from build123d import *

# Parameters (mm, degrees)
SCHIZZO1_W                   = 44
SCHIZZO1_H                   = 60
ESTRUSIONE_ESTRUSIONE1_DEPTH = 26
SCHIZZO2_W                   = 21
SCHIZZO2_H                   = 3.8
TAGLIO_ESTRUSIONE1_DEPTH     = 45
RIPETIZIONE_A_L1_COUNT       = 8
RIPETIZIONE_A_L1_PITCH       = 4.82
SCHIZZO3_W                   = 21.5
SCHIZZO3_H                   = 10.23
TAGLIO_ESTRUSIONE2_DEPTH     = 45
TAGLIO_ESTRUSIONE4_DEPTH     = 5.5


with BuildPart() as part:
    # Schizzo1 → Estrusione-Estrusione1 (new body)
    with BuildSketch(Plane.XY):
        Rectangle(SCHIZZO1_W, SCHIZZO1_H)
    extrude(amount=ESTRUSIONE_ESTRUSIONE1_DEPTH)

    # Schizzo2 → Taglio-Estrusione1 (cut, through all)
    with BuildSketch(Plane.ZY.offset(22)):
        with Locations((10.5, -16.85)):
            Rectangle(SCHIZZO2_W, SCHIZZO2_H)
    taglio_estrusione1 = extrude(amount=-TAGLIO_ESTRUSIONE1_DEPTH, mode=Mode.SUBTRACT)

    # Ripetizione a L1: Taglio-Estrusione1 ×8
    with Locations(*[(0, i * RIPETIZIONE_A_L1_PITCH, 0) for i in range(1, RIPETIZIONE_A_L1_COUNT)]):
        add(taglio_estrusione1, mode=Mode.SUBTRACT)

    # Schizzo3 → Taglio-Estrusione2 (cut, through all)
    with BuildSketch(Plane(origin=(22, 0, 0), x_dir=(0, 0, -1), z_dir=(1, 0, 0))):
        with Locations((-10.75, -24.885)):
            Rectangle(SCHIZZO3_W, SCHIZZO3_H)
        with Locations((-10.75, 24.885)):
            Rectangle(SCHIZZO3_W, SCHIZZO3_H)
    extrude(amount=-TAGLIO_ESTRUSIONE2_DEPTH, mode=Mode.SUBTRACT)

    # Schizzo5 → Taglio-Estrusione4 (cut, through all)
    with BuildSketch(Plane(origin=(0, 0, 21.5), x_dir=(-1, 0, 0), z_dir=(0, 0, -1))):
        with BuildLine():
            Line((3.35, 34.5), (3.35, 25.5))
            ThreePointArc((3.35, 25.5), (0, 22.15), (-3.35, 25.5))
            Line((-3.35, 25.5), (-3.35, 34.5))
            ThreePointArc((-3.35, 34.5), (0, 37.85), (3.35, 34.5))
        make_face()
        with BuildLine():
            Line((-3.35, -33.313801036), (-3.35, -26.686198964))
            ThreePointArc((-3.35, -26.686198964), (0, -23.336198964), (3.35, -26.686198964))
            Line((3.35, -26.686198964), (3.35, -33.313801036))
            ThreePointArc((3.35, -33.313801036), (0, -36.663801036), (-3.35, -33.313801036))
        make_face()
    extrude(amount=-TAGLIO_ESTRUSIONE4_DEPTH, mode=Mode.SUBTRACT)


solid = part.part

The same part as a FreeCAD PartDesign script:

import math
import FreeCAD as App
import Part
import Sketcher

V = App.Vector
Q = App.Units.Quantity


def add_polygon(sketch, points):
    """Adds a closed chain of lines whose ends are joined by coincident constraints."""
    first, n = sketch.GeometryCount, len(points)
    for a, b in zip(points, points[1:] + points[:1]):
        sketch.addGeometry(Part.LineSegment(App.Vector(*a, 0), App.Vector(*b, 0)), False)
    for i in range(n):
        sketch.addConstraint(Sketcher.Constraint("Coincident", first + i, 2, first + (i + 1) % n, 1))

doc = App.newDocument("Part")
body = doc.addObject("PartDesign::Body", "Body")

# Sketch on XY plane
sketch1 = doc.addObject("Sketcher::SketchObject", "Sketch")
body.addObject(sketch1)
sketch1.AttachmentSupport = (doc.XY_Plane, [""])
sketch1.MapMode = "FlatFace"
add_polygon(sketch1, [(-22, 30), (-22, -30), (22, -30), (22, 30)])  # lines 0-3
sketch1.addConstraint(Sketcher.Constraint("Vertical", 0))
sketch1.addConstraint(Sketcher.Constraint("Horizontal", 1))
sketch1.addConstraint(Sketcher.Constraint("Vertical", 2))
sketch1.addConstraint(Sketcher.Constraint("Horizontal", 3))
sketch1.addConstraint(Sketcher.Constraint("Symmetric", 0, 2, 2, 2, -1, 1))
sketch1.addConstraint(Sketcher.Constraint("DistanceX", 1, 1, 1, 2, Q("44 mm")))
sketch1.addConstraint(Sketcher.Constraint("DistanceY", 0, 2, 0, 1, Q("60 mm")))
pad1 = doc.addObject("PartDesign::Pad", "Pad")
body.addObject(pad1)
pad1.Profile = sketch1
pad1.Length = 26

# Sketch on YZ plane
sketch2 = doc.addObject("Sketcher::SketchObject", "Sketch001")
body.addObject(sketch2)
sketch2.AttachmentSupport = (doc.YZ_Plane, [""])
sketch2.MapMode = "FlatFace"
sketch2.AttachmentOffset = App.Placement(V(0, 0, -22), App.Rotation())
add_polygon(sketch2, [(-14.9, 0), (-18.8, 0), (-18.8, 21), (-14.9, 21)])  # lines 0-3
sketch2.addConstraint(Sketcher.Constraint("Horizontal", 0))
sketch2.addConstraint(Sketcher.Constraint("Vertical", 1))
sketch2.addConstraint(Sketcher.Constraint("Horizontal", 2))
sketch2.addConstraint(Sketcher.Constraint("Vertical", 3))
sketch2.addConstraint(Sketcher.Constraint("PointOnObject", 0, 2, -1))
sketch2.addConstraint(Sketcher.Constraint("DistanceY", 1, 1, 1, 2, Q("21 mm")))
sketch2.addConstraint(Sketcher.Constraint("DistanceX", 0, 2, 0, 1, Q("3.8 mm")))
sketch2.addConstraint(Sketcher.Constraint("DistanceX", 0, 2, -1, 1, Q("18.75 mm")))
pocket1 = doc.addObject("PartDesign::Pocket", "Pocket")
body.addObject(pocket1)
pocket1.Profile = sketch2
pocket1.Type = "ThroughAll"
pocket1.Reversed = True
doc.recompute()

linearpattern = doc.addObject("PartDesign::LinearPattern", "LinearPattern")
body.addObject(linearpattern)
linearpattern.Originals = [pocket1]
linearpattern.Direction = (doc.Y_Axis, [""])
linearpattern.Mode = "offset"
linearpattern.Offset = 4.82
linearpattern.Occurrences = 8
body.Tip = linearpattern

# Sketch on YZ plane
sketch3 = doc.addObject("Sketcher::SketchObject", "Sketch002")
body.addObject(sketch3)
sketch3.AttachmentSupport = (doc.YZ_Plane, [""])
sketch3.MapMode = "FlatFace"
sketch3.AttachmentOffset = App.Placement(V(0, 0, 22), App.Rotation())
add_polygon(sketch3, [(-20, 22), (-30, 22), (-30, 0), (-20, 0)])  # lines 0-3
add_polygon(sketch3, [(30, 22), (20, 22), (20, 0), (30, 0)])  # lines 4-7
sketch3.addConstraint(Sketcher.Constraint("Horizontal", 0))
sketch3.addConstraint(Sketcher.Constraint("Vertical", 1))
sketch3.addConstraint(Sketcher.Constraint("Horizontal", 2))
sketch3.addConstraint(Sketcher.Constraint("Vertical", 3))
sketch3.addConstraint(Sketcher.Constraint("Horizontal", 4))
sketch3.addConstraint(Sketcher.Constraint("Vertical", 5))
sketch3.addConstraint(Sketcher.Constraint("Horizontal", 6))
sketch3.addConstraint(Sketcher.Constraint("Vertical", 7))
sketch3.addConstraint(Sketcher.Constraint("Symmetric", 2, 2, 5, 2, -1, 1))
sketch3.addConstraint(Sketcher.Constraint("Symmetric", 1, 2, 6, 2, -2))
sketch3.addConstraint(Sketcher.Constraint("Horizontal", 3, 2, 4, 2))
sketch3.addConstraint(Sketcher.Constraint("DistanceY", 1, 2, 1, 1, Q("21.5 mm")))
sketch3.addConstraint(Sketcher.Constraint("DistanceX", 0, 2, -1, 1, Q("30 mm")))
sketch3.addConstraint(Sketcher.Constraint("DistanceX", 0, 2, 0, 1, Q("10.23 mm")))
pocket2 = doc.addObject("PartDesign::Pocket", "Pocket001")
body.addObject(pocket2)
pocket2.Profile = sketch3
pocket2.Type = "ThroughAll"

# Sketch on XY plane
sketch4 = doc.addObject("Sketcher::SketchObject", "Sketch003")
body.addObject(sketch4)
sketch4.AttachmentSupport = (doc.XY_Plane, [""])
sketch4.MapMode = "FlatFace"
sketch4.AttachmentOffset = App.Placement(V(0, 0, 21.5), App.Rotation())
sketch4.addGeometry(Part.LineSegment(V(-3.4, 25.5, 0), V(-3.4, 34.5, 0)), False)
sketch4.addGeometry(Part.ArcOfCircle(Part.Circle(V(0, 34.5, 0), V(0, 0, 1), 3.4), math.radians(0), math.radians(180)), False)
sketch4.addGeometry(Part.LineSegment(V(3.4, 34.5, 0), V(3.4, 25.5, 0)), False)
sketch4.addGeometry(Part.ArcOfCircle(Part.Circle(V(0, 25.5, 0), V(0, 0, 1), 3.4), math.radians(180), math.radians(360)), False)
sketch4.addGeometry(Part.LineSegment(V(3.4, -26.7, 0), V(3.4, -33.3, 0)), False)
sketch4.addGeometry(Part.ArcOfCircle(Part.Circle(V(0, -33.3, 0), V(0, 0, 1), 3.4), math.radians(180), math.radians(360)), False)
sketch4.addGeometry(Part.LineSegment(V(-3.4, -33.3, 0), V(-3.4, -26.7, 0)), False)
sketch4.addGeometry(Part.ArcOfCircle(Part.Circle(V(0, -26.7, 0), V(0, 0, 1), 3.4), math.radians(0), math.radians(180)), False)
sketch4.addConstraint(Sketcher.Constraint("Tangent", 0, 2, 1, 2))
sketch4.addConstraint(Sketcher.Constraint("Tangent", 1, 1, 2, 1))
sketch4.addConstraint(Sketcher.Constraint("Tangent", 2, 2, 3, 2))
sketch4.addConstraint(Sketcher.Constraint("Tangent", 3, 1, 0, 1))
sketch4.addConstraint(Sketcher.Constraint("Tangent", 4, 2, 5, 2))
sketch4.addConstraint(Sketcher.Constraint("Tangent", 5, 1, 6, 1))
sketch4.addConstraint(Sketcher.Constraint("Tangent", 6, 2, 7, 2))
sketch4.addConstraint(Sketcher.Constraint("Tangent", 7, 1, 4, 1))
sketch4.addConstraint(Sketcher.Constraint("Vertical", 0))
sketch4.addConstraint(Sketcher.Constraint("Vertical", 2))
sketch4.addConstraint(Sketcher.Constraint("Vertical", 4))
sketch4.addConstraint(Sketcher.Constraint("Vertical", 6))
sketch4.addConstraint(Sketcher.Constraint("Equal", 3, 5))
sketch4.addConstraint(Sketcher.Constraint("PointOnObject", 1, 3, -2))
sketch4.addConstraint(Sketcher.Constraint("PointOnObject", 5, 3, -2))
sketch4.addConstraint(Sketcher.Constraint("DistanceY", 0, 1, 0, 2, Q("9 mm")))
sketch4.addConstraint(Sketcher.Constraint("Radius", 1, Q("3.35 mm")))
sketch4.addConstraint(Sketcher.Constraint("DistanceY", -1, 1, 1, 3, Q("34.5 mm")))
sketch4.addConstraint(Sketcher.Constraint("DistanceY", 5, 3, -1, 1, Q("33.313801 mm")))
sketch4.addConstraint(Sketcher.Constraint("DistanceY", 7, 3, -1, 1, Q("26.686199 mm")))
pocket3 = doc.addObject("PartDesign::Pocket", "Pocket002")
body.addObject(pocket3)
pocket3.Profile = sketch4
pocket3.Type = "ThroughAll"
pocket3.Reversed = True

doc.recompute()
